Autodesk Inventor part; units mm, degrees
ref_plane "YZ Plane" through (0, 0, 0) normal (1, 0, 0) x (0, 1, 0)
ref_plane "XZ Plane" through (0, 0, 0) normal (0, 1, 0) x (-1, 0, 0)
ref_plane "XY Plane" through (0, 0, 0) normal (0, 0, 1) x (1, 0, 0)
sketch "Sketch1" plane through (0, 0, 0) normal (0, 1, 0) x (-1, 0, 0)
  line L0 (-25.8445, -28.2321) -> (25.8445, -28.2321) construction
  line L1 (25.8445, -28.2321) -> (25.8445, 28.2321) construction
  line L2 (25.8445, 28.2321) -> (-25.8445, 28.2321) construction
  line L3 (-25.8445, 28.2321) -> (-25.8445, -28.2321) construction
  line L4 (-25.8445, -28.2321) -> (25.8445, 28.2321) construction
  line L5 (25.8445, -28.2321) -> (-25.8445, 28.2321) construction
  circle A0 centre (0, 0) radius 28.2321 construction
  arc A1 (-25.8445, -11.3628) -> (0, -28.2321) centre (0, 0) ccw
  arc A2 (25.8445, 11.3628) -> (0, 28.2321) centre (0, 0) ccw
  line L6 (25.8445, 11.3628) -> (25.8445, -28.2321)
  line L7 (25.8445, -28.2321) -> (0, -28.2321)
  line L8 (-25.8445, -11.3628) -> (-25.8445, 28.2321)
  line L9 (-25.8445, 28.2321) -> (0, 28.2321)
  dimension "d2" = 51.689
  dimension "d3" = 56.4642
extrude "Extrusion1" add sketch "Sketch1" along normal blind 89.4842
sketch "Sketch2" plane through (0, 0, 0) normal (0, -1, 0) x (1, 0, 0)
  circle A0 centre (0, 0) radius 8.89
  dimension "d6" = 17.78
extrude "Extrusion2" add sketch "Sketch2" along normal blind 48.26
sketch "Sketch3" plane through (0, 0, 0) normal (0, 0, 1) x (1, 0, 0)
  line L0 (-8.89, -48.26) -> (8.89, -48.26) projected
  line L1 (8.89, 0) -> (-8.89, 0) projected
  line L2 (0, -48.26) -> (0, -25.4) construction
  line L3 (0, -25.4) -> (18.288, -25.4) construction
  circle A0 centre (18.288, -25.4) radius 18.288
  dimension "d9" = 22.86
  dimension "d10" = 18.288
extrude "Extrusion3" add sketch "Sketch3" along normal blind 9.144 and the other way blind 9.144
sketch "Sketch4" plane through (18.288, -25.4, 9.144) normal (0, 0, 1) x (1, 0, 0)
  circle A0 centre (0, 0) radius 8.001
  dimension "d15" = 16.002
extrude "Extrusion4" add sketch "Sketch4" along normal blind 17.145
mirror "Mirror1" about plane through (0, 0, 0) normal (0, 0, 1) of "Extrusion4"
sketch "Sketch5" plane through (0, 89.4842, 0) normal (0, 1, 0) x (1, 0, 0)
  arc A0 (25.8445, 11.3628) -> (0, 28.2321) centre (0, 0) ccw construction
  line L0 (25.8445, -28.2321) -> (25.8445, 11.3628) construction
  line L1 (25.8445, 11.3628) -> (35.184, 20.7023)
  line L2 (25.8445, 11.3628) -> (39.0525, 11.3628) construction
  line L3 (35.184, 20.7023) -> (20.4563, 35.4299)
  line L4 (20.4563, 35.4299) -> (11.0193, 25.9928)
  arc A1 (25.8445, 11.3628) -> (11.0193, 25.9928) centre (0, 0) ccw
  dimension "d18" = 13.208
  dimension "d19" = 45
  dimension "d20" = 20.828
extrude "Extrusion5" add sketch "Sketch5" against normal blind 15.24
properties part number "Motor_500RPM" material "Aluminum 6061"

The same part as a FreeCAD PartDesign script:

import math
import FreeCAD as App
import Part
import Sketcher
from FreeCAD import Vector
Q = App.Units.Quantity

doc = App.newDocument("Part")
body = doc.addObject("PartDesign::Body", "Body")

# Sketch on XZ plane
sketch1 = body.newObject("Sketcher::SketchObject", "Sketch")
sketch1.AttachmentSupport = (doc.getObject("XZ_Plane"), [""])
sketch1.MapMode = "FlatFace"
sketch1.addGeometry([
    Part.LineSegment(Vector(26, 28, 0), Vector(26, -11, 0)),  # 0
    Part.ArcOfCircle(Part.Circle(Vector(0, 0, 0), Vector(0, 0, 1), 28), math.radians(-90), math.radians(-24)),  # 1
    Part.LineSegment(Vector(0, -28, 0), Vector(-26, -28, 0)),  # 2
    Part.LineSegment(Vector(-26, -28, 0), Vector(-26, 11, 0)),  # 3
    Part.ArcOfCircle(Part.Circle(Vector(0, 0, 0), Vector(0, 0, 1), 28), math.radians(90), math.radians(156)),  # 4
    Part.LineSegment(Vector(0, 28, 0), Vector(26, 28, 0)),  # 5
], False)
sketch1.addConstraint([
    Sketcher.Constraint("Coincident", 0, 2, 1, 2),
    Sketcher.Constraint("Tangent", 1, 1, 2, 1),
    Sketcher.Constraint("Coincident", 2, 2, 3, 1),
    Sketcher.Constraint("Coincident", 3, 2, 4, 2),
    Sketcher.Constraint("Tangent", 4, 1, 5, 1),
    Sketcher.Constraint("Coincident", 5, 2, 0, 1),
    Sketcher.Constraint("Vertical", 0),
    Sketcher.Constraint("Horizontal", 2),
    Sketcher.Constraint("Vertical", 3),
    Sketcher.Constraint("Horizontal", 5),
    Sketcher.Constraint("Coincident", 1, 3, -1, 1),
    Sketcher.Constraint("Coincident", 4, 3, -1, 1),
    Sketcher.Constraint("Equal", 1, 4),
    Sketcher.Constraint("Equal", 2, 5),
    Sketcher.Constraint("Radius", 1, Q("1.1115 in")),
    Sketcher.Constraint("DistanceX", 2, 2, 0, 2, Q("2.035 in")),
])
pad1 = body.newObject("PartDesign::Pad", "Pad")
pad1.Profile = sketch1
pad1.Length = Q("3.523 in")
pad1.Reversed = True

# Sketch on XZ plane
sketch2 = body.newObject("Sketcher::SketchObject", "Sketch001")
sketch2.AttachmentSupport = (doc.getObject("XZ_Plane"), [""])
sketch2.MapMode = "FlatFace"
sketch2.addGeometry(Part.Circle(Vector(0, 0, 0), Vector(0, 0, 1), 9), False)
sketch2.addConstraint([
    Sketcher.Constraint("Coincident", 0, 3, -1, 1),
    Sketcher.Constraint("Diameter", 0, Q("0.7 in")),
])
pad2 = body.newObject("PartDesign::Pad", "Pad001")
pad2.Profile = sketch2
pad2.Length = Q("1.9 in")

# Sketch on XY plane
sketch3 = body.newObject("Sketcher::SketchObject", "Sketch002")
sketch3.AttachmentSupport = (doc.getObject("XY_Plane"), [""])
sketch3.MapMode = "FlatFace"
sketch3.addGeometry(Part.Circle(Vector(18, -25, 0), Vector(0, 0, 1), 18), False)
sketch3.addConstraint([
    Sketcher.Constraint("Diameter", 0, Q("1.44 in")),
    Sketcher.Constraint("DistanceX", -1, 1, 0, 3, Q("0.72 in")),
    Sketcher.Constraint("DistanceY", 0, 3, -1, 1, Q("1 in")),
])
pad3 = body.newObject("PartDesign::Pad", "Pad002")
pad3.Profile = sketch3
pad3.Type = "TwoLengths"
pad3.Length = Q("0.36 in")
pad3.Length2 = Q("0.36 in")

# Sketch on XY plane
sketch4 = body.newObject("Sketcher::SketchObject", "Sketch003")
sketch4.AttachmentSupport = (doc.getObject("XY_Plane"), [""])
sketch4.MapMode = "FlatFace"
sketch4.AttachmentOffset = App.Placement(Vector(0, 0, 0.36 * 25.4), App.Rotation())
sketch4.addGeometry(Part.Circle(Vector(18, -25, 0), Vector(0, 0, 1), 8), False)
sketch4.addConstraint([
    Sketcher.Constraint("Diameter", 0, Q("0.63 in")),
    Sketcher.Constraint("DistanceY", 0, 3, -1, 1, Q("1 in")),
    Sketcher.Constraint("DistanceX", -1, 1, 0, 3, Q("0.72 in")),
])
pad4 = body.newObject("PartDesign::Pad", "Pad003")
pad4.Profile = sketch4
pad4.Length = Q("0.675 in")
doc.recompute()

mirrored = body.newObject("PartDesign::Mirrored", "Mirrored")
mirrored.Originals = [pad4]
mirrored.MirrorPlane = (doc.getObject("XY_Plane"), [""])
body.Tip = mirrored

# Sketch on XZ plane
sketch5 = body.newObject("Sketcher::SketchObject", "Sketch004")
sketch5.AttachmentSupport = (doc.getObject("XZ_Plane"), [""])
sketch5.MapMode = "FlatFace"
sketch5.AttachmentOffset = App.Placement(Vector(0, 0, -3.523 * 25.4), App.Rotation())
sketch5.addGeometry([
    Part.ArcOfCircle(Part.Circle(Vector(0, 0, 0), Vector(0, 0, 1), 28), math.radians(-67), math.radians(-24)),
    Part.LineSegment(Vector(26, -11, 0), Vector(35, -21, 0)),
    Part.LineSegment(Vector(35, -21, 0), Vector(20, -35, 0)),
    Part.LineSegment(Vector(20, -35, 0), Vector(11, -26, 0)),
], False)
sketch5.addConstraint([
    Sketcher.Constraint("Coincident", 0, 2, 1, 1),
    Sketcher.Constraint("Coincident", 1, 2, 2, 1),
    Sketcher.Constraint("Coincident", 2, 2, 3, 1),
    Sketcher.Constraint("Coincident", 3, 2, 0, 1),
    Sketcher.Constraint("Coincident", 0, 3, -1, 1),
    Sketcher.Constraint("Perpendicular", 1, 2),
    Sketcher.Constraint("Perpendicular", 2, 3),
    Sketcher.Constraint("Angle", 1, Q("-45 deg")),
    Sketcher.Constraint("Distance", 1, Q("0.52 in")),
    Sketcher.Constraint("Distance", 2, Q("0.82 in")),
    Sketcher.Constraint("Radius", 0, Q("1.1115 in")),
    Sketcher.Constraint("DistanceX", -1, 1, 0, 2, Q("1.0175 in")),
])
pad5 = body.newObject("PartDesign::Pad", "Pad004")
pad5.Profile = sketch5
pad5.Length = Q("0.6 in")

doc.recompute()
